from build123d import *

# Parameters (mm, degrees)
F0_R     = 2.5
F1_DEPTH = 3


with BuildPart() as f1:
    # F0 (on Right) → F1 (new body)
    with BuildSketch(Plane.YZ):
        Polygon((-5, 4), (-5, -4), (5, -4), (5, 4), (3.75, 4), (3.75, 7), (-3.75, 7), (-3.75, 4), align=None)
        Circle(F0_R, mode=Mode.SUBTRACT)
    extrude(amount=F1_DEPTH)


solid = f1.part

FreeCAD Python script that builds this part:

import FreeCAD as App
import Part
import Sketcher
from FreeCAD import Vector
Q = App.Units.Quantity

doc = App.newDocument("Part")
params = doc.addObject("Spreadsheet::Sheet", "Params")
for row, (alias, value) in enumerate([
    ("sketch1_diameter", "5 mm"),
    ("sketch1_width", "10 mm"),
    ("sketch1_height", "8 mm"),
    ("sketch1_height2", "3 mm"),
    ("sketch1_width2", "7.5 mm"),
    ("pad1_length", "3 mm"),
], start=1):
    params.set(f"A{row}", alias)
    params.set(f"B{row}", "=" + value)
    params.setAlias(f"B{row}", alias)

body = doc.addObject("PartDesign::Body", "Body")

# Sketch on YZ plane
sketch1 = body.newObject("Sketcher::SketchObject", "Sketch")
sketch1.AttachmentSupport = (doc.getObject("YZ_Plane"), [""])
sketch1.MapMode = "FlatFace"
sketch1.addGeometry([
    Part.LineSegment(Vector(-5, 4, 0), Vector(-5, -4, 0)),  # 0
    Part.LineSegment(Vector(-5, -4, 0), Vector(5, -4, 0)),  # 1
    Part.LineSegment(Vector(5, -4, 0), Vector(5, 4, 0)),  # 2
    Part.LineSegment(Vector(5, 4, 0), Vector(3.75, 4, 0)),  # 3
    Part.LineSegment(Vector(3.75, 4, 0), Vector(3.75, 7, 0)),  # 4
    Part.LineSegment(Vector(3.75, 7, 0), Vector(-3.75, 7, 0)),  # 5
    Part.LineSegment(Vector(-3.75, 7, 0), Vector(-3.75, 4, 0)),  # 6
    Part.LineSegment(Vector(-3.75, 4, 0), Vector(-5, 4, 0)),  # 7
    Part.Circle(Vector(0, 0, 0), Vector(0, 0, 1), 2.5),  # 8
], False)
sketch1.addConstraint([
    Sketcher.Constraint("Coincident", 0, 2, 1, 1),
    Sketcher.Constraint("Coincident", 1, 2, 2, 1),
    Sketcher.Constraint("Coincident", 2, 2, 3, 1),
    Sketcher.Constraint("Coincident", 3, 2, 4, 1),
    Sketcher.Constraint("Coincident", 4, 2, 5, 1),
    Sketcher.Constraint("Coincident", 5, 2, 6, 1),
    Sketcher.Constraint("Coincident", 6, 2, 7, 1),
    Sketcher.Constraint("Coincident", 7, 2, 0, 1),
    Sketcher.Constraint("Vertical", 0),
    Sketcher.Constraint("Horizontal", 1),
    Sketcher.Constraint("Vertical", 2),
    Sketcher.Constraint("Horizontal", 3),
    Sketcher.Constraint("Vertical", 4),
    Sketcher.Constraint("Horizontal", 5),
    Sketcher.Constraint("Vertical", 6),
    Sketcher.Constraint("Horizontal", 7),
    Sketcher.Constraint("Coincident", 8, 3, -1, 1),
    Sketcher.Constraint("Symmetric", 0, 2, 2, 2, -1, 1),
    Sketcher.Constraint("Symmetric", 3, 2, 6, 2, -2),
    Sketcher.Constraint("Diameter", 8, Q("5 mm")),
    Sketcher.Constraint("DistanceX", 1, 1, 1, 2, Q("10 mm")),
    Sketcher.Constraint("DistanceY", 0, 2, 0, 1, Q("8 mm")),
    Sketcher.Constraint("DistanceY", 4, 1, 4, 2, Q("3 mm")),
    Sketcher.Constraint("DistanceX", 5, 2, 5, 1, Q("7.5 mm")),
])
sketch1.setExpression("Constraints[19]", "Params.sketch1_diameter")
sketch1.setExpression("Constraints[20]", "Params.sketch1_width")
sketch1.setExpression("Constraints[21]", "Params.sketch1_height")
sketch1.setExpression("Constraints[22]", "Params.sketch1_height2")
sketch1.setExpression("Constraints[23]", "Params.sketch1_width2")
pad1 = body.newObject("PartDesign::Pad", "Pad")
pad1.Profile = sketch1
pad1.setExpression("Length", "Params.pad1_length")

doc.recompute()
